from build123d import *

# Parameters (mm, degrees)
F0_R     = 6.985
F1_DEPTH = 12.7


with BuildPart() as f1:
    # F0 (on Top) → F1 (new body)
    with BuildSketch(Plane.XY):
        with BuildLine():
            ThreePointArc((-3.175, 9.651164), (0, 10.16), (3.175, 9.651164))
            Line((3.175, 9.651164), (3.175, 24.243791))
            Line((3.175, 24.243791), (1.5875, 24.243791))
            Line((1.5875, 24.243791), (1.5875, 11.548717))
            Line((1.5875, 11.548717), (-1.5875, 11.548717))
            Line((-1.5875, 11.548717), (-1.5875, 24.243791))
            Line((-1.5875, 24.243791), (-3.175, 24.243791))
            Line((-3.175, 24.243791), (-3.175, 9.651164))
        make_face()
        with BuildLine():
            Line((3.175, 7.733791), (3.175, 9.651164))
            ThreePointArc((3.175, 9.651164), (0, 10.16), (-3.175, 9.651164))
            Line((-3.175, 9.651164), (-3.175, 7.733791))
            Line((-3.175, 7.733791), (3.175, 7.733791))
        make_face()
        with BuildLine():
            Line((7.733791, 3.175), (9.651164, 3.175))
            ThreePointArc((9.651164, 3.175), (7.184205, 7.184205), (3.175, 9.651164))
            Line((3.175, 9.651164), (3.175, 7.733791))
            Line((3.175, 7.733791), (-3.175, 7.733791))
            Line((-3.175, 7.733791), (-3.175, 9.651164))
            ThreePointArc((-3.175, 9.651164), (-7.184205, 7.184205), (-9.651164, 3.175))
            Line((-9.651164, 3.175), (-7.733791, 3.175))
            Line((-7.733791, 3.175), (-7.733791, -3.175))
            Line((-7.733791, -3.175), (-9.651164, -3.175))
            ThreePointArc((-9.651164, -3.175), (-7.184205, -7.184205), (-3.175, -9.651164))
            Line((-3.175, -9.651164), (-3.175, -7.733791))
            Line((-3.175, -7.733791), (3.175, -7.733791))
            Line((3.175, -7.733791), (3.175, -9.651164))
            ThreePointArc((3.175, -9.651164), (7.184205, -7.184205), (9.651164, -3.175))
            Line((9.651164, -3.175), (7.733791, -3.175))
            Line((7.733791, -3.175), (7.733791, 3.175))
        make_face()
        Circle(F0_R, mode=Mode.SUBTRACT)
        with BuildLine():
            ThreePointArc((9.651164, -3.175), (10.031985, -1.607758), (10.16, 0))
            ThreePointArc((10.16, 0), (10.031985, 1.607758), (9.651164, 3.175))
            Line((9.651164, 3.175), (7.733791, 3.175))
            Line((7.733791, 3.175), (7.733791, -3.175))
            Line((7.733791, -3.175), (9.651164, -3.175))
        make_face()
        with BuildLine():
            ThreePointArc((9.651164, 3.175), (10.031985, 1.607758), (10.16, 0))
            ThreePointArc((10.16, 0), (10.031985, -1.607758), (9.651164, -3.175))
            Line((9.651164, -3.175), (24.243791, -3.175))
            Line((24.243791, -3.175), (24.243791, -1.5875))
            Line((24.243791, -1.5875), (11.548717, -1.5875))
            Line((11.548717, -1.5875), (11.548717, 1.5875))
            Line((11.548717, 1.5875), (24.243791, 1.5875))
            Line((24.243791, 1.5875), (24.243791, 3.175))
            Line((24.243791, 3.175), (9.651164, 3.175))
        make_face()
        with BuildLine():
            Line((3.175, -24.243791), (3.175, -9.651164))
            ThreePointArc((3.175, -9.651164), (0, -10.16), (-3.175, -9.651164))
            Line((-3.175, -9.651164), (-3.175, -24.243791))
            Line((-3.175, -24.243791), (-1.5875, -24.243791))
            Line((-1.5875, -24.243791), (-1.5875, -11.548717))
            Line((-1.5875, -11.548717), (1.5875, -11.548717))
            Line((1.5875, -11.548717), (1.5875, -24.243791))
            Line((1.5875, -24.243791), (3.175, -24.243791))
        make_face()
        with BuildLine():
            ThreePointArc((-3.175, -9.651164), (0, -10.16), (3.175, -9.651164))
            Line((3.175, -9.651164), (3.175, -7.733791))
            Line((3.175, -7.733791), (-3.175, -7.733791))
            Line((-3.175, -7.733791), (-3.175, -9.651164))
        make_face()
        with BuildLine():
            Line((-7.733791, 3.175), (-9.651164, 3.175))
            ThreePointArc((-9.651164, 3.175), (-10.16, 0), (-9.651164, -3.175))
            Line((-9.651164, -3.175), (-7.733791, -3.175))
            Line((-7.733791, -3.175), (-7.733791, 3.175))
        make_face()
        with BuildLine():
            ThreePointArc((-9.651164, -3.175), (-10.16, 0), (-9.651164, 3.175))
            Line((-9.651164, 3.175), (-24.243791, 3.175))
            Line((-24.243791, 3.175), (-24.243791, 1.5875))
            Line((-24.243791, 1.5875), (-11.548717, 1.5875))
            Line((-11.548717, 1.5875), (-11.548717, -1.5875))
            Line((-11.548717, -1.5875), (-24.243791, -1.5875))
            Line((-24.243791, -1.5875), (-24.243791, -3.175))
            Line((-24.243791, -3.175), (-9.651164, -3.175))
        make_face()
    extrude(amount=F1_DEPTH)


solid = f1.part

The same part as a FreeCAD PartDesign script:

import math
import FreeCAD as App
import Part
import Sketcher
from FreeCAD import Vector
Q = App.Units.Quantity

doc = App.newDocument("Part")
params = doc.addObject("Spreadsheet::Sheet", "Params")
for row, (alias, value) in enumerate([
    ("sketch1_diameter", "0.55 in"),
    ("sketch1_width", "0.0625 in"),
    ("sketch1_width2", "0.125 in"),
    ("pad1_length", "0.5 in"),
], start=1):
    params.set(f"A{row}", alias)
    params.set(f"B{row}", "=" + value)
    params.setAlias(f"B{row}", alias)

body = doc.addObject("PartDesign::Body", "Body")

# Sketch on XY plane
sketch1 = doc.addObject("Sketcher::SketchObject", "Sketch")
body.addObject(sketch1)
sketch1.AttachmentSupport = (doc.XY_Plane, [""])
sketch1.MapMode = "FlatFace"
sketch1.addGeometry([
    Part.LineSegment(Vector(3.175, 24.243791, 0), Vector(1.5875, 24.243791, 0)),  # 0
    Part.LineSegment(Vector(1.5875, 24.243791, 0), Vector(1.5875, 11.548717, 0)),  # 1
    Part.LineSegment(Vector(1.5875, 11.548717, 0), Vector(-1.5875, 11.548717, 0)),  # 2
    Part.LineSegment(Vector(-1.5875, 11.548717, 0), Vector(-1.5875, 24.243791, 0)),  # 3
    Part.LineSegment(Vector(-1.5875, 24.243791, 0), Vector(-3.175, 24.243791, 0)),  # 4
    Part.LineSegment(Vector(-3.175, 24.243791, 0), Vector(-3.175, 9.651164, 0)),  # 5
    Part.ArcOfCircle(Part.Circle(Vector(-0.000004, 0.000004, 0), Vector(0, 0, 1), 10.159995), math.radians(108.209944), math.radians(161.790056)),  # 6
    Part.LineSegment(Vector(-9.651164, 3.175, 0), Vector(-24.243791, 3.175, 0)),  # 7
    Part.LineSegment(Vector(-24.243791, 3.175, 0), Vector(-24.243791, 1.5875, 0)),  # 8
    Part.LineSegment(Vector(-24.243791, 1.5875, 0), Vector(-11.548717, 1.5875, 0)),  # 9
    Part.LineSegment(Vector(-11.548717, 1.5875, 0), Vector(-11.548717, -1.5875, 0)),  # 10
    Part.LineSegment(Vector(-11.548717, -1.5875, 0), Vector(-24.243791, -1.5875, 0)),  # 11
    Part.LineSegment(Vector(-24.243791, -1.5875, 0), Vector(-24.243791, -3.175, 0)),  # 12
    Part.LineSegment(Vector(-24.243791, -3.175, 0), Vector(-9.651164, -3.175, 0)),  # 13
    Part.ArcOfCircle(Part.Circle(Vector(-0.000004, -0.000004, 0), Vector(0, 0, 1), 10.159995), math.radians(-161.790056), math.radians(-108.209944)),  # 14
    Part.LineSegment(Vector(-3.175, -9.651164, 0), Vector(-3.175, -24.243791, 0)),  # 15
    Part.LineSegment(Vector(-3.175, -24.243791, 0), Vector(-1.5875, -24.243791, 0)),  # 16
    Part.LineSegment(Vector(-1.5875, -24.243791, 0), Vector(-1.5875, -11.548717, 0)),  # 17
    Part.LineSegment(Vector(-1.5875, -11.548717, 0), Vector(1.5875, -11.548717, 0)),  # 18
    Part.LineSegment(Vector(1.5875, -11.548717, 0), Vector(1.5875, -24.243791, 0)),  # 19
    Part.LineSegment(Vector(1.5875, -24.243791, 0), Vector(3.175, -24.243791, 0)),  # 20
    Part.LineSegment(Vector(3.175, -24.243791, 0), Vector(3.175, -9.651164, 0)),  # 21
    Part.ArcOfCircle(Part.Circle(Vector(0.000004, -0.000004, 0), Vector(0, 0, 1), 10.159995), math.radians(-71.790056), math.radians(-18.209944)),  # 22
    Part.LineSegment(Vector(9.651164, -3.175, 0), Vector(24.243791, -3.175, 0)),  # 23
    Part.LineSegment(Vector(24.243791, -3.175, 0), Vector(24.243791, -1.5875, 0)),  # 24
    Part.LineSegment(Vector(24.243791, -1.5875, 0), Vector(11.548717, -1.5875, 0)),  # 25
    Part.LineSegment(Vector(11.548717, -1.5875, 0), Vector(11.548717, 1.5875, 0)),  # 26
    Part.LineSegment(Vector(11.548717, 1.5875, 0), Vector(24.243791, 1.5875, 0)),  # 27
    Part.LineSegment(Vector(24.243791, 1.5875, 0), Vector(24.243791, 3.175, 0)),  # 28
    Part.LineSegment(Vector(24.243791, 3.175, 0), Vector(9.651164, 3.175, 0)),  # 29
    Part.ArcOfCircle(Part.Circle(Vector(0.000004, 0.000004, 0), Vector(0, 0, 1), 10.159995), math.radians(18.209944), math.radians(71.790056)),  # 30
    Part.LineSegment(Vector(3.175, 9.651164, 0), Vector(3.175, 24.243791, 0)),  # 31
    Part.Circle(Vector(0, 0, 0), Vector(0, 0, 1), 6.985),  # 32
], False)
sketch1.addConstraint([
    Sketcher.Constraint("Coincident", 0, 2, 1, 1),
    Sketcher.Constraint("Coincident", 1, 2, 2, 1),
    Sketcher.Constraint("Coincident", 2, 2, 3, 1),
    Sketcher.Constraint("Coincident", 3, 2, 4, 1),
    Sketcher.Constraint("Coincident", 4, 2, 5, 1),
    Sketcher.Constraint("Coincident", 5, 2, 6, 1),
    Sketcher.Constraint("Coincident", 6, 2, 7, 1),
    Sketcher.Constraint("Coincident", 7, 2, 8, 1),
    Sketcher.Constraint("Coincident", 8, 2, 9, 1),
    Sketcher.Constraint("Coincident", 9, 2, 10, 1),
    Sketcher.Constraint("Coincident", 10, 2, 11, 1),
    Sketcher.Constraint("Coincident", 11, 2, 12, 1),
    Sketcher.Constraint("Coincident", 12, 2, 13, 1),
    Sketcher.Constraint("Coincident", 13, 2, 14, 1),
    Sketcher.Constraint("Coincident", 14, 2, 15, 1),
    Sketcher.Constraint("Coincident", 15, 2, 16, 1),
    Sketcher.Constraint("Coincident", 16, 2, 17, 1),
    Sketcher.Constraint("Coincident", 17, 2, 18, 1),
    Sketcher.Constraint("Coincident", 18, 2, 19, 1),
    Sketcher.Constraint("Coincident", 19, 2, 20, 1),
    Sketcher.Constraint("Coincident", 20, 2, 21, 1),
    Sketcher.Constraint("Coincident", 21, 2, 22, 1),
    Sketcher.Constraint("Coincident", 22, 2, 23, 1),
    Sketcher.Constraint("Coincident", 23, 2, 24, 1),
    Sketcher.Constraint("Coincident", 24, 2, 25, 1),
    Sketcher.Constraint("Coincident", 25, 2, 26, 1),
    Sketcher.Constraint("Coincident", 26, 2, 27, 1),
    Sketcher.Constraint("Coincident", 27, 2, 28, 1),
    Sketcher.Constraint("Coincident", 28, 2, 29, 1),
    Sketcher.Constraint("Coincident", 29, 2, 30, 1),
    Sketcher.Constraint("Coincident", 30, 2, 31, 1),
    Sketcher.Constraint("Coincident", 31, 2, 0, 1),
    Sketcher.Constraint("Horizontal", 0),
    Sketcher.Constraint("Vertical", 1),
    Sketcher.Constraint("Horizontal", 2),
    Sketcher.Constraint("Vertical", 3),
    Sketcher.Constraint("Horizontal", 4),
    Sketcher.Constraint("Vertical", 5),
    Sketcher.Constraint("Horizontal", 7),
    Sketcher.Constraint("Vertical", 8),
    Sketcher.Constraint("Horizontal", 9),
    Sketcher.Constraint("Vertical", 10),
    Sketcher.Constraint("Horizontal", 11),
    Sketcher.Constraint("Vertical", 12),
    Sketcher.Constraint("Horizontal", 13),
    Sketcher.Constraint("Vertical", 15),
    Sketcher.Constraint("Horizontal", 16),
    Sketcher.Constraint("Vertical", 17),
    Sketcher.Constraint("Horizontal", 18),
    Sketcher.Constraint("Vertical", 19),
    Sketcher.Constraint("Horizontal", 20),
    Sketcher.Constraint("Vertical", 21),
    Sketcher.Constraint("Horizontal", 23),
    Sketcher.Constraint("Vertical", 24),
    Sketcher.Constraint("Horizontal", 25),
    Sketcher.Constraint("Vertical", 26),
    Sketcher.Constraint("Horizontal", 27),
    Sketcher.Constraint("Vertical", 28),
    Sketcher.Constraint("Horizontal", 29),
    Sketcher.Constraint("Vertical", 31),
    Sketcher.Constraint("Coincident", 6, 3, -1, 1),
    Sketcher.Constraint("Coincident", 14, 3, -1, 1),
    Sketcher.Constraint("Coincident", 22, 3, -1, 1),
    Sketcher.Constraint("Coincident", 30, 3, -1, 1),
    Sketcher.Constraint("Coincident", 32, 3, -1, 1),
    Sketcher.Constraint("Equal", 6, 14),
    Sketcher.Constraint("Equal", 14, 22),
    Sketcher.Constraint("Equal", 22, 30),
    Sketcher.Constraint("Symmetric", 0, 2, 16, 2, -1, 1),
    Sketcher.Constraint("Symmetric", 2, 2, 18, 2, -1, 1),
    Sketcher.Constraint("Symmetric", 4, 2, 20, 2, -1, 1),
    Sketcher.Constraint("Symmetric", 7, 2, 23, 2, -1, 1),
    Sketcher.Constraint("Symmetric", 9, 2, 25, 2, -1, 1),
    Sketcher.Constraint("Symmetric", 11, 2, 27, 2, -1, 1),
    Sketcher.Constraint("Symmetric", 0, 2, 3, 2, -2),
    Sketcher.Constraint("Symmetric", 12, 2, 23, 2, -2),
    Sketcher.Constraint("Horizontal", 14, 2, 21, 2),
    Sketcher.Constraint("Horizontal", 11, 2, 24, 2),
    Sketcher.Constraint("Horizontal", 7, 2, 28, 2),
    Sketcher.Constraint("Horizontal", 5, 2, 30, 2),
    Sketcher.Constraint("Equal", 27, 1),
    Sketcher.Constraint("Equal", 29, 5),
    Sketcher.Constraint("Equal", 20, 8),
    Sketcher.Constraint("Equal", 18, 10),
    Sketcher.Constraint("Diameter", 32, Q("0.55 in")),
    Sketcher.Constraint("DistanceX", 0, 2, 0, 1, Q("0.0625 in")),
    Sketcher.Constraint("DistanceX", 2, 2, 2, 1, Q("0.125 in")),
    Sketcher.Constraint("Radius", 6, Q("10.159995 mm")),
    Sketcher.Constraint("DistanceX", 7, 2, 7, 1, Q("14.592627 mm")),
    Sketcher.Constraint("DistanceX", 9, 1, 9, 2, Q("12.695074 mm")),
])
sketch1.setExpression("Constraints[84]", "Params.sketch1_diameter")
sketch1.setExpression("Constraints[85]", "Params.sketch1_width")
sketch1.setExpression("Constraints[86]", "Params.sketch1_width2")
pad1 = doc.addObject("PartDesign::Pad", "Pad")
body.addObject(pad1)
pad1.Profile = sketch1
pad1.setExpression("Length", "Params.pad1_length")

doc.recompute()
